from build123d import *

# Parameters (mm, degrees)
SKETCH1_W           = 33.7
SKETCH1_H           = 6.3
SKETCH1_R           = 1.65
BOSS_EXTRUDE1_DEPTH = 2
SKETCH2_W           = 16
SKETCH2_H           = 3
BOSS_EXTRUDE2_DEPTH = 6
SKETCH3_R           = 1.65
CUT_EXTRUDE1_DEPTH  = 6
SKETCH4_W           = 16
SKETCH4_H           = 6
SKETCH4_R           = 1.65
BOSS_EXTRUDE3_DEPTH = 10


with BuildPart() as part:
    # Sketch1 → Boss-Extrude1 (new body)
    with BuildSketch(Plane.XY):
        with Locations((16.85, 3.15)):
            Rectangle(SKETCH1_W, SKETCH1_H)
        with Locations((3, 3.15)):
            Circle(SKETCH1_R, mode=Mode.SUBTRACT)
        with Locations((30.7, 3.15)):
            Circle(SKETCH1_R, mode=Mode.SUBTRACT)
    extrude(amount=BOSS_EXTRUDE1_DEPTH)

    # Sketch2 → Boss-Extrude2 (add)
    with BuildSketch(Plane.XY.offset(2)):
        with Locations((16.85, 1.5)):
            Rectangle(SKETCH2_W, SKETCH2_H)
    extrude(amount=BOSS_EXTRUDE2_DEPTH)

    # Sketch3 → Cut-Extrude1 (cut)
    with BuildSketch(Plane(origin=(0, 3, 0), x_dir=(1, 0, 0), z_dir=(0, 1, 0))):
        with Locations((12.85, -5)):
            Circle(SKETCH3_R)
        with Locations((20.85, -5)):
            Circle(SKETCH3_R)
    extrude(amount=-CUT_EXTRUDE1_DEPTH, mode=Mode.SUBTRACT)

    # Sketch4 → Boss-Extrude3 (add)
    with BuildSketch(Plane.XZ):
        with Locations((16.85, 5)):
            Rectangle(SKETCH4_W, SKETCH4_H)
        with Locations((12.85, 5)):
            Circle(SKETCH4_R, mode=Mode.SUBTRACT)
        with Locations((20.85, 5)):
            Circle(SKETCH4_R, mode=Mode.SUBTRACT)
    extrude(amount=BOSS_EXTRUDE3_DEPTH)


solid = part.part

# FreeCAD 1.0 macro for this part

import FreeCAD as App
import Part
import Sketcher

V = App.Vector

doc = App.newDocument("Part")
body = doc.addObject("PartDesign::Body", "Body")

# Sketch on XY plane
sketch1 = doc.addObject("Sketcher::SketchObject", "Sketch")
body.addObject(sketch1)
sketch1.AttachmentSupport = (doc.XY_Plane, [""])
sketch1.MapMode = "FlatFace"
sketch1.addGeometry(Part.LineSegment(V(0, 6.3, 0), V(0, 0, 0)), False)
sketch1.addGeometry(Part.LineSegment(V(0, 0, 0), V(33.7, 0, 0)), False)
sketch1.addGeometry(Part.LineSegment(V(33.7, 0, 0), V(33.7, 6.3, 0)), False)
sketch1.addGeometry(Part.LineSegment(V(33.7, 6.3, 0), V(0, 6.3, 0)), False)
sketch1.addGeometry(Part.Circle(V(3, 3.15, 0), V(0, 0, 1), 1.65), False)
sketch1.addGeometry(Part.Circle(V(30.7, 3.15, 0), V(0, 0, 1), 1.65), False)
sketch1.addConstraint(Sketcher.Constraint("Coincident", 0, 2, 1, 1))
sketch1.addConstraint(Sketcher.Constraint("Coincident", 1, 2, 2, 1))
sketch1.addConstraint(Sketcher.Constraint("Coincident", 2, 2, 3, 1))
sketch1.addConstraint(Sketcher.Constraint("Coincident", 3, 2, 0, 1))
sketch1.addConstraint(Sketcher.Constraint("Vertical", 0))
sketch1.addConstraint(Sketcher.Constraint("Horizontal", 1))
sketch1.addConstraint(Sketcher.Constraint("Vertical", 2))
sketch1.addConstraint(Sketcher.Constraint("Horizontal", 3))
sketch1.addConstraint(Sketcher.Constraint("Coincident", 0, 2, -1, 1))
sketch1.addConstraint(Sketcher.Constraint("Equal", 4, 5))
sketch1.addConstraint(Sketcher.Constraint("Horizontal", 4, 3, 5, 3))
sketch1.addConstraint(Sketcher.Constraint("Diameter", 4, 3.3))
sketch1.addConstraint(Sketcher.Constraint("DistanceX", 1, 1, 1, 2, 33.7))
sketch1.addConstraint(Sketcher.Constraint("DistanceY", 0, 2, 0, 1, 6.3))
sketch1.addConstraint(Sketcher.Constraint("DistanceX", -1, 1, 4, 3, 3.0))
sketch1.addConstraint(Sketcher.Constraint("DistanceX", 5, 3, 1, 2, 3.0))
sketch1.addConstraint(Sketcher.Constraint("DistanceY", -1, 1, 4, 3, 3.15))
pad1 = doc.addObject("PartDesign::Pad", "Pad")
body.addObject(pad1)
pad1.Profile = sketch1
pad1.Length = 2

# Sketch on XY plane
sketch2 = doc.addObject("Sketcher::SketchObject", "Sketch001")
body.addObject(sketch2)
sketch2.AttachmentSupport = (doc.XY_Plane, [""])
sketch2.MapMode = "FlatFace"
sketch2.AttachmentOffset = App.Placement(V(0, 0, 2), App.Rotation())
sketch2.addGeometry(Part.LineSegment(V(8.85, 3, 0), V(8.85, 0, 0)), False)
sketch2.addGeometry(Part.LineSegment(V(8.85, 0, 0), V(24.85, 0, 0)), False)
sketch2.addGeometry(Part.LineSegment(V(24.85, 0, 0), V(24.85, 3, 0)), False)
sketch2.addGeometry(Part.LineSegment(V(24.85, 3, 0), V(8.85, 3, 0)), False)
sketch2.addConstraint(Sketcher.Constraint("Coincident", 0, 2, 1, 1))
sketch2.addConstraint(Sketcher.Constraint("Coincident", 1, 2, 2, 1))
sketch2.addConstraint(Sketcher.Constraint("Coincident", 2, 2, 3, 1))
sketch2.addConstraint(Sketcher.Constraint("Coincident", 3, 2, 0, 1))
sketch2.addConstraint(Sketcher.Constraint("Vertical", 0))
sketch2.addConstraint(Sketcher.Constraint("Horizontal", 1))
sketch2.addConstraint(Sketcher.Constraint("Vertical", 2))
sketch2.addConstraint(Sketcher.Constraint("Horizontal", 3))
sketch2.addConstraint(Sketcher.Constraint("PointOnObject", 0, 2, -1))
sketch2.addConstraint(Sketcher.Constraint("DistanceX", 1, 1, 1, 2, 16.0))
sketch2.addConstraint(Sketcher.Constraint("DistanceY", 0, 2, 0, 1, 3.0))
sketch2.addConstraint(Sketcher.Constraint("DistanceX", -1, 1, 0, 2, 8.85))
pad2 = doc.addObject("PartDesign::Pad", "Pad001")
body.addObject(pad2)
pad2.Profile = sketch2
pad2.Length = 6

# Sketch on XZ plane
sketch3 = doc.addObject("Sketcher::SketchObject", "Sketch002")
body.addObject(sketch3)
sketch3.AttachmentSupport = (doc.XZ_Plane, [""])
sketch3.MapMode = "FlatFace"
sketch3.AttachmentOffset = App.Placement(V(0, 0, -3), App.Rotation())
sketch3.addGeometry(Part.Circle(V(12.85, 5, 0), V(0, 0, 1), 1.65), False)
sketch3.addGeometry(Part.Circle(V(20.85, 5, 0), V(0, 0, 1), 1.65), False)
sketch3.addConstraint(Sketcher.Constraint("Equal", 0, 1))
sketch3.addConstraint(Sketcher.Constraint("Horizontal", 0, 3, 1, 3))
sketch3.addConstraint(Sketcher.Constraint("Diameter", 0, 3.3))
sketch3.addConstraint(Sketcher.Constraint("DistanceY", -1, 1, 0, 3, 5.0))
sketch3.addConstraint(Sketcher.Constraint("DistanceX", 0, 3, 1, 3, 8.0))
sketch3.addConstraint(Sketcher.Constraint("DistanceX", -1, 1, 0, 3, 12.85))
pocket1 = doc.addObject("PartDesign::Pocket", "Pocket")
body.addObject(pocket1)
pocket1.Profile = sketch3
pocket1.Length = 6
pocket1.Reversed = True

# Sketch on XZ plane
sketch4 = doc.addObject("Sketcher::SketchObject", "Sketch003")
body.addObject(sketch4)
sketch4.AttachmentSupport = (doc.XZ_Plane, [""])
sketch4.MapMode = "FlatFace"
sketch4.addGeometry(Part.LineSegment(V(8.85, 8, 0), V(8.85, 2, 0)), False)
sketch4.addGeometry(Part.LineSegment(V(8.85, 2, 0), V(24.85, 2, 0)), False)
sketch4.addGeometry(Part.LineSegment(V(24.85, 2, 0), V(24.85, 8, 0)), False)
sketch4.addGeometry(Part.LineSegment(V(24.85, 8, 0), V(8.85, 8, 0)), False)
sketch4.addGeometry(Part.Circle(V(12.85, 5, 0), V(0, 0, 1), 1.65), False)
sketch4.addGeometry(Part.Circle(V(20.85, 5, 0), V(0, 0, 1), 1.65), False)
sketch4.addConstraint(Sketcher.Constraint("Coincident", 0, 2, 1, 1))
sketch4.addConstraint(Sketcher.Constraint("Coincident", 1, 2, 2, 1))
sketch4.addConstraint(Sketcher.Constraint("Coincident", 2, 2, 3, 1))
sketch4.addConstraint(Sketcher.Constraint("Coincident", 3, 2, 0, 1))
sketch4.addConstraint(Sketcher.Constraint("Vertical", 0))
sketch4.addConstraint(Sketcher.Constraint("Horizontal", 1))
sketch4.addConstraint(Sketcher.Constraint("Vertical", 2))
sketch4.addConstraint(Sketcher.Constraint("Horizontal", 3))
sketch4.addConstraint(Sketcher.Constraint("Equal", 4, 5))
sketch4.addConstraint(Sketcher.Constraint("Horizontal", 4, 3, 5, 3))
sketch4.addConstraint(Sketcher.Constraint("Diameter", 4, 3.3))
sketch4.addConstraint(Sketcher.Constraint("DistanceX", 1, 1, 1, 2, 16.0))
sketch4.addConstraint(Sketcher.Constraint("DistanceY", 0, 2, 0, 1, 6.0))
sketch4.addConstraint(Sketcher.Constraint("DistanceY", -1, 1, 4, 3, 5.0))
sketch4.addConstraint(Sketcher.Constraint("DistanceY", -1, 1, 0, 2, 2.0))
sketch4.addConstraint(Sketcher.Constraint("DistanceX", 4, 3, 5, 3, 8.0))
sketch4.addConstraint(Sketcher.Constraint("DistanceX", 0, 2, 4, 3, 4.0))
sketch4.addConstraint(Sketcher.Constraint("DistanceX", -1, 1, 4, 3, 12.85))
pad3 = doc.addObject("PartDesign::Pad", "Pad002")
body.addObject(pad3)
pad3.Profile = sketch4
pad3.Length = 10

doc.recompute()
